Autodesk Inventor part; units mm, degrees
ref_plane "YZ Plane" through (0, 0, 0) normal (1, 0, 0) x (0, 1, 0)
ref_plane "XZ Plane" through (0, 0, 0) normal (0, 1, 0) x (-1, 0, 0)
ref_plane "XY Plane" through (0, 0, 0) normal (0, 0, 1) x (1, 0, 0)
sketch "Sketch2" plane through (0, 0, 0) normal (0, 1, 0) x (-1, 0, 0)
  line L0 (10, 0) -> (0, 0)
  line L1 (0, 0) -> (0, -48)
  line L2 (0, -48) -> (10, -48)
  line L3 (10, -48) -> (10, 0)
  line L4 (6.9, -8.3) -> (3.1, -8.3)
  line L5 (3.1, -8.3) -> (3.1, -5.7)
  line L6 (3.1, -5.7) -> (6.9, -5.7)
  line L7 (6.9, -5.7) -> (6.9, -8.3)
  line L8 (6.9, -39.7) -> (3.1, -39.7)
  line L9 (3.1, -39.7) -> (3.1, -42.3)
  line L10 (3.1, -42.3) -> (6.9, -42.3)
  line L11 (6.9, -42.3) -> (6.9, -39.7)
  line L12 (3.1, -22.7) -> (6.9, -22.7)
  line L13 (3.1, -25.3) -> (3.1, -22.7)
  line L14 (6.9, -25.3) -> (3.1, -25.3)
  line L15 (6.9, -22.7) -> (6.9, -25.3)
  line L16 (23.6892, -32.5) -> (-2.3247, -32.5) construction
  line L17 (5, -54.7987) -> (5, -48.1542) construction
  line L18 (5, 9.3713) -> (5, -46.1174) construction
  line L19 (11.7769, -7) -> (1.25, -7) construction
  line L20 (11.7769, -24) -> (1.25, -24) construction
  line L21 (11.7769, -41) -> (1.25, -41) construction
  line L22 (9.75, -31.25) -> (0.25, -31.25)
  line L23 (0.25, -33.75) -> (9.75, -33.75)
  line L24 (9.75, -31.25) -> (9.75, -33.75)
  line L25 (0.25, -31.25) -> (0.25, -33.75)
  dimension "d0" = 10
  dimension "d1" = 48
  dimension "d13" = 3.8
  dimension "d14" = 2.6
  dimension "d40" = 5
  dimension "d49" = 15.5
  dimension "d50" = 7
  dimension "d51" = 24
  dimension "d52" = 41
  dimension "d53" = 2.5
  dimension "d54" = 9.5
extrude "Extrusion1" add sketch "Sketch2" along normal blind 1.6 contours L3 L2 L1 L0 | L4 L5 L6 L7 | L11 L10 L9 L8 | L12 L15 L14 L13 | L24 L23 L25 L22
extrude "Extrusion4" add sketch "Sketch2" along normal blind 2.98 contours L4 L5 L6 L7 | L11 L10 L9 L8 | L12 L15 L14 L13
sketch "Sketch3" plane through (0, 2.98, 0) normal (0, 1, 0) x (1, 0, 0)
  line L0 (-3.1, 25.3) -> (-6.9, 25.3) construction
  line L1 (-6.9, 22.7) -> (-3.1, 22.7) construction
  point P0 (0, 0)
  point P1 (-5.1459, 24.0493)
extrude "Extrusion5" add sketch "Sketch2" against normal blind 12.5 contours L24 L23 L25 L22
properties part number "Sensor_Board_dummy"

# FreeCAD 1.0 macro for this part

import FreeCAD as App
import Part
import Sketcher
from FreeCAD import Vector


def add_polygon(sketch, points):
    """Adds a closed chain of lines whose ends are joined by coincident constraints."""
    first, n = sketch.GeometryCount, len(points)
    for a, b in zip(points, points[1:] + points[:1]):
        sketch.addGeometry(Part.LineSegment(App.Vector(*a, 0), App.Vector(*b, 0)), False)
    for i in range(n):
        sketch.addConstraint(Sketcher.Constraint("Coincident", first + i, 2, first + (i + 1) % n, 1))

doc = App.newDocument("Part")
body = doc.addObject("PartDesign::Body", "Body")

sketch1 = body.newObject("Sketcher::SketchObject", "Sketch")
sketch1.AttachmentSupport = (doc.getObject("XZ_Plane"), [""])
sketch1.MapMode = "FlatFace"
add_polygon(sketch1, [(-10, -48), (-10, 0), (0, 0), (0, -48)])
sketch1.addConstraint(Sketcher.Constraint("Vertical", 0))
sketch1.addConstraint(Sketcher.Constraint("Horizontal", 1))
sketch1.addConstraint(Sketcher.Constraint("Vertical", 2))
sketch1.addConstraint(Sketcher.Constraint("Horizontal", 3))
sketch1.addConstraint(Sketcher.Constraint("Coincident", 1, 2, -1, 1))
sketch1.addConstraint(Sketcher.Constraint("DistanceX", 1, 1, 1, 2, 10.0))
sketch1.addConstraint(Sketcher.Constraint("DistanceY", 0, 1, 0, 2, 48.0))
pad1 = body.newObject("PartDesign::Pad", "Pad")
pad1.Profile = sketch1
pad1.Length = 1.6
pad1.Reversed = True

sketch2 = body.newObject("Sketcher::SketchObject", "Sketch001")
sketch2.AttachmentSupport = (doc.getObject("XZ_Plane"), [""])
sketch2.MapMode = "FlatFace"
add_polygon(sketch2, [(-3.1, -8.3), (-6.9, -8.3), (-6.9, -5.7), (-3.1, -5.7)])
add_polygon(sketch2, [(-6.9, -42.3), (-6.9, -39.7), (-3.1, -39.7), (-3.1, -42.3)])
add_polygon(sketch2, [(-6.9, -22.7), (-3.1, -22.7), (-3.1, -25.3), (-6.9, -25.3)])
sketch2.addConstraint(Sketcher.Constraint("Horizontal", 0))
sketch2.addConstraint(Sketcher.Constraint("Vertical", 1))
sketch2.addConstraint(Sketcher.Constraint("Horizontal", 2))
sketch2.addConstraint(Sketcher.Constraint("Vertical", 3))
sketch2.addConstraint(Sketcher.Constraint("Vertical", 4))
sketch2.addConstraint(Sketcher.Constraint("Horizontal", 5))
sketch2.addConstraint(Sketcher.Constraint("Vertical", 6))
sketch2.addConstraint(Sketcher.Constraint("Horizontal", 7))
sketch2.addConstraint(Sketcher.Constraint("Horizontal", 8))
sketch2.addConstraint(Sketcher.Constraint("Vertical", 9))
sketch2.addConstraint(Sketcher.Constraint("Horizontal", 10))
sketch2.addConstraint(Sketcher.Constraint("Vertical", 11))
sketch2.addConstraint(Sketcher.Constraint("Vertical", 1, 2, 4, 2))
sketch2.addConstraint(Sketcher.Constraint("Vertical", 3, 2, 5, 2))
sketch2.addConstraint(Sketcher.Constraint("Vertical", 6, 2, 8, 2))
sketch2.addConstraint(Sketcher.Constraint("Vertical", 7, 2, 10, 2))
sketch2.addConstraint(Sketcher.Constraint("Equal", 3, 4))
sketch2.addConstraint(Sketcher.Constraint("Equal", 6, 9))
sketch2.addConstraint(Sketcher.Constraint("DistanceX", 0, 2, 0, 1, 3.8))
sketch2.addConstraint(Sketcher.Constraint("DistanceY", 1, 1, 1, 2, 2.6))
sketch2.addConstraint(Sketcher.Constraint("DistanceY", 4, 2, 1, 2, 34.0))
sketch2.addConstraint(Sketcher.Constraint("DistanceY", 8, 2, 2, 2, 17.0))
sketch2.addConstraint(Sketcher.Constraint("DistanceX", 0, 2, -1, 1, 6.9))
sketch2.addConstraint(Sketcher.Constraint("DistanceY", 0, 2, -1, 1, 8.3))
pad2 = body.newObject("PartDesign::Pad", "Pad001")
pad2.Profile = sketch2
pad2.Length = 2.98
pad2.Reversed = True

sketch3 = body.newObject("Sketcher::SketchObject", "Sketch002")
sketch3.AttachmentSupport = (doc.getObject("XZ_Plane"), [""])
sketch3.MapMode = "FlatFace"
add_polygon(sketch3, [(-9.8, -33.8), (-9.8, -31.2), (-0.2, -31.2), (-0.2, -33.8)])
sketch3.addConstraint(Sketcher.Constraint("Vertical", 0))
sketch3.addConstraint(Sketcher.Constraint("Horizontal", 1))
sketch3.addConstraint(Sketcher.Constraint("Vertical", 2))
sketch3.addConstraint(Sketcher.Constraint("Horizontal", 3))
sketch3.addConstraint(Sketcher.Constraint("DistanceX", 1, 1, 1, 2, 9.5))
sketch3.addConstraint(Sketcher.Constraint("DistanceY", 0, 1, 0, 2, 2.5))
sketch3.addConstraint(Sketcher.Constraint("DistanceX", 0, 2, -1, 1, 9.75))
sketch3.addConstraint(Sketcher.Constraint("DistanceY", 0, 2, -1, 1, 31.25))
pad3 = body.newObject("PartDesign::Pad", "Pad002")
pad3.Profile = sketch3
pad3.Length = 12.5

doc.recompute()
